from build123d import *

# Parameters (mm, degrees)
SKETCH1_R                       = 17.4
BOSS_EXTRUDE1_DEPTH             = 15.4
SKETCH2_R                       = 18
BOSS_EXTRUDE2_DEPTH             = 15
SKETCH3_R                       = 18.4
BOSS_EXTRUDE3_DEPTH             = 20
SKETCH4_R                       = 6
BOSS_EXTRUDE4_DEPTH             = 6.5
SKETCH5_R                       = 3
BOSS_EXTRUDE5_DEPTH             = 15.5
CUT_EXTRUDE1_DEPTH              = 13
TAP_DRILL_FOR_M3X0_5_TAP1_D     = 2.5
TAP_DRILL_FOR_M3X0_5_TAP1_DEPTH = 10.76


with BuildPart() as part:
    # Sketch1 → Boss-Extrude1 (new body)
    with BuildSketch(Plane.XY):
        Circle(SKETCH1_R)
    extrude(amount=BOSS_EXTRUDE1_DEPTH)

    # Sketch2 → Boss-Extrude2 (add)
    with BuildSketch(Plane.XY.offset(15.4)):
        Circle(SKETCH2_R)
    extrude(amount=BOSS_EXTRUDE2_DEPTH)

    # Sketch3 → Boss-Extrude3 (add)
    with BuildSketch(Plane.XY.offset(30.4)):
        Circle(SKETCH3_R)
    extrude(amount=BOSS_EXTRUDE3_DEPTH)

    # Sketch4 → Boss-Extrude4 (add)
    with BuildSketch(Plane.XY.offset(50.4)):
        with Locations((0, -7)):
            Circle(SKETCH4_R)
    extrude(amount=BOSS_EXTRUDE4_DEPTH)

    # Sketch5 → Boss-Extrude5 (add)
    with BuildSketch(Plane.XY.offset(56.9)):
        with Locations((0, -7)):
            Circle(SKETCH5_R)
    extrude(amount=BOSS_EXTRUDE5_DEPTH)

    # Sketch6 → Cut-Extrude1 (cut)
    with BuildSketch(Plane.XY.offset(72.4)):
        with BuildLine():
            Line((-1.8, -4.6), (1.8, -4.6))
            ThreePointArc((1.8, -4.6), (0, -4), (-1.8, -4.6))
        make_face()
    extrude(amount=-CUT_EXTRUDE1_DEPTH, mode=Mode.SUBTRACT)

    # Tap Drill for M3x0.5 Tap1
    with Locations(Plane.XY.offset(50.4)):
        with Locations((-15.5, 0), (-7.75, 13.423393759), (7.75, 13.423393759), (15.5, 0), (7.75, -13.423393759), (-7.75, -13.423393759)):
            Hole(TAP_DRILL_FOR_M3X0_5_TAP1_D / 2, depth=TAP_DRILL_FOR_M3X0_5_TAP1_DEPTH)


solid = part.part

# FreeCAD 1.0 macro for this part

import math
import FreeCAD as App
import Part
import Sketcher
from FreeCAD import Vector
Q = App.Units.Quantity

doc = App.newDocument("Part")
body = doc.addObject("PartDesign::Body", "Body")

sketch1 = body.newObject("Sketcher::SketchObject", "Sketch")
sketch1.AttachmentSupport = (doc.getObject("XY_Plane"), [""])
sketch1.MapMode = "FlatFace"
sketch1.addGeometry(Part.Circle(Vector(0, 0, 0), Vector(0, 0, 1), 17.4), False)
sketch1.addConstraint(Sketcher.Constraint("Coincident", 0, 3, -1, 1))
sketch1.addConstraint(Sketcher.Constraint("Diameter", 0, Q("34.8 mm")))
pad1 = body.newObject("PartDesign::Pad", "Pad")
pad1.Profile = sketch1
pad1.Length = 15.4

sketch2 = body.newObject("Sketcher::SketchObject", "Sketch001")
sketch2.AttachmentSupport = (doc.getObject("XY_Plane"), [""])
sketch2.MapMode = "FlatFace"
sketch2.AttachmentOffset = App.Placement(Vector(0, 0, 15.4), App.Rotation())
sketch2.addGeometry(Part.Circle(Vector(0, 0, 0), Vector(0, 0, 1), 18), False)
sketch2.addConstraint(Sketcher.Constraint("Coincident", 0, 3, -1, 1))
sketch2.addConstraint(Sketcher.Constraint("Diameter", 0, Q("36 mm")))
pad2 = body.newObject("PartDesign::Pad", "Pad001")
pad2.Profile = sketch2
pad2.Length = 15

sketch3 = body.newObject("Sketcher::SketchObject", "Sketch002")
sketch3.AttachmentSupport = (doc.getObject("XY_Plane"), [""])
sketch3.MapMode = "FlatFace"
sketch3.AttachmentOffset = App.Placement(Vector(0, 0, 30.4), App.Rotation())
sketch3.addGeometry(Part.Circle(Vector(0, 0, 0), Vector(0, 0, 1), 18.4), False)
sketch3.addConstraint(Sketcher.Constraint("Coincident", 0, 3, -1, 1))
sketch3.addConstraint(Sketcher.Constraint("Diameter", 0, Q("36.8 mm")))
pad3 = body.newObject("PartDesign::Pad", "Pad002")
pad3.Profile = sketch3
pad3.Length = 20

sketch4 = body.newObject("Sketcher::SketchObject", "Sketch003")
sketch4.AttachmentSupport = (doc.getObject("XY_Plane"), [""])
sketch4.MapMode = "FlatFace"
sketch4.AttachmentOffset = App.Placement(Vector(0, 0, 50.4), App.Rotation())
sketch4.addGeometry(Part.Circle(Vector(0, -7, 0), Vector(0, 0, 1), 6), False)
sketch4.addConstraint(Sketcher.Constraint("PointOnObject", 0, 3, -2))
sketch4.addConstraint(Sketcher.Constraint("Diameter", 0, Q("12 mm")))
sketch4.addConstraint(Sketcher.Constraint("DistanceY", 0, 3, -1, 1, Q("7 mm")))
pad4 = body.newObject("PartDesign::Pad", "Pad003")
pad4.Profile = sketch4
pad4.Length = 6.5

sketch5 = body.newObject("Sketcher::SketchObject", "Sketch004")
sketch5.AttachmentSupport = (doc.getObject("XY_Plane"), [""])
sketch5.MapMode = "FlatFace"
sketch5.AttachmentOffset = App.Placement(Vector(0, 0, 56.9), App.Rotation())
sketch5.addGeometry(Part.Circle(Vector(0, -7, 0), Vector(0, 0, 1), 3), False)
sketch5.addConstraint(Sketcher.Constraint("PointOnObject", 0, 3, -2))
sketch5.addConstraint(Sketcher.Constraint("Diameter", 0, Q("6 mm")))
sketch5.addConstraint(Sketcher.Constraint("DistanceY", 0, 3, -1, 1, Q("7 mm")))
pad5 = body.newObject("PartDesign::Pad", "Pad004")
pad5.Profile = sketch5
pad5.Length = 15.5

sketch6 = body.newObject("Sketcher::SketchObject", "Sketch005")
sketch6.AttachmentSupport = (doc.getObject("XY_Plane"), [""])
sketch6.MapMode = "FlatFace"
sketch6.AttachmentOffset = App.Placement(Vector(0, 0, 72.4), App.Rotation())
sketch6.addGeometry(Part.LineSegment(Vector(-1.8, -4.6, 0), Vector(1.8, -4.6, 0)), False)
sketch6.addGeometry(Part.ArcOfCircle(Part.Circle(Vector(0, -7, 0), Vector(0, 0, 1), 3), math.radians(53.130102), math.radians(126.869898)), False)
sketch6.addConstraint(Sketcher.Constraint("Coincident", 0, 1, 1, 2))
sketch6.addConstraint(Sketcher.Constraint("Coincident", 1, 1, 0, 2))
sketch6.addConstraint(Sketcher.Constraint("Horizontal", 0))
sketch6.addConstraint(Sketcher.Constraint("PointOnObject", 1, 3, -2))
sketch6.addConstraint(Sketcher.Constraint("Radius", 1, Q("3 mm")))
sketch6.addConstraint(Sketcher.Constraint("DistanceX", 0, 1, 0, 2, Q("3.6 mm")))
sketch6.addConstraint(Sketcher.Constraint("DistanceY", 1, 3, -1, 1, Q("7 mm")))
pocket1 = body.newObject("PartDesign::Pocket", "Pocket")
pocket1.Profile = sketch6
pocket1.Length = 13

sketch7 = body.newObject("Sketcher::SketchObject", "Sketch006")
sketch7.AttachmentSupport = (doc.getObject("XY_Plane"), [""])
sketch7.MapMode = "FlatFace"
sketch7.AttachmentOffset = App.Placement(Vector(0, 0, 50.4), App.Rotation())
sketch7.addGeometry(Part.Circle(Vector(-15.5, 0, 0), Vector(0, 0, 1), 1.25), False)
sketch7.addGeometry(Part.Circle(Vector(-7.75, 13.423394, 0), Vector(0, 0, 1), 1.25), False)
sketch7.addGeometry(Part.Circle(Vector(7.75, 13.423394, 0), Vector(0, 0, 1), 1.25), False)
sketch7.addGeometry(Part.Circle(Vector(15.5, 0, 0), Vector(0, 0, 1), 1.25), False)
sketch7.addGeometry(Part.Circle(Vector(7.75, -13.423394, 0), Vector(0, 0, 1), 1.25), False)
sketch7.addGeometry(Part.Circle(Vector(-7.75, -13.423394, 0), Vector(0, 0, 1), 1.25), False)
sketch7.addConstraint(Sketcher.Constraint("Equal", 0, 1))
sketch7.addConstraint(Sketcher.Constraint("Equal", 1, 2))
sketch7.addConstraint(Sketcher.Constraint("Equal", 2, 3))
sketch7.addConstraint(Sketcher.Constraint("Equal", 3, 4))
sketch7.addConstraint(Sketcher.Constraint("Equal", 4, 5))
sketch7.addConstraint(Sketcher.Constraint("Symmetric", 0, 3, 3, 3, -1, 1))
sketch7.addConstraint(Sketcher.Constraint("Symmetric", 1, 3, 4, 3, -1, 1))
sketch7.addConstraint(Sketcher.Constraint("Symmetric", 2, 3, 5, 3, -1, 1))
sketch7.addConstraint(Sketcher.Constraint("Symmetric", 1, 3, 2, 3, -2))
sketch7.addConstraint(Sketcher.Constraint("PointOnObject", 0, 3, -1))
sketch7.addConstraint(Sketcher.Constraint("Diameter", 0, Q("2.5 mm")))
sketch7.addConstraint(Sketcher.Constraint("DistanceX", 0, 3, 3, 3, Q("31 mm")))
sketch7.addConstraint(Sketcher.Constraint("DistanceX", 1, 3, 2, 3, Q("15.5 mm")))
sketch7.addConstraint(Sketcher.Constraint("DistanceY", -1, 1, 1, 3, Q("13.423394 mm")))
doc.recompute()
hole = body.newObject("PartDesign::Hole", "Hole")
hole.Profile = sketch7
hole.ThreadType = "None"
hole.Diameter = 2.5
hole.DepthType = "Dimension"
hole.Depth = 10.76
hole.DrillPoint = "Flat"

doc.recompute()
